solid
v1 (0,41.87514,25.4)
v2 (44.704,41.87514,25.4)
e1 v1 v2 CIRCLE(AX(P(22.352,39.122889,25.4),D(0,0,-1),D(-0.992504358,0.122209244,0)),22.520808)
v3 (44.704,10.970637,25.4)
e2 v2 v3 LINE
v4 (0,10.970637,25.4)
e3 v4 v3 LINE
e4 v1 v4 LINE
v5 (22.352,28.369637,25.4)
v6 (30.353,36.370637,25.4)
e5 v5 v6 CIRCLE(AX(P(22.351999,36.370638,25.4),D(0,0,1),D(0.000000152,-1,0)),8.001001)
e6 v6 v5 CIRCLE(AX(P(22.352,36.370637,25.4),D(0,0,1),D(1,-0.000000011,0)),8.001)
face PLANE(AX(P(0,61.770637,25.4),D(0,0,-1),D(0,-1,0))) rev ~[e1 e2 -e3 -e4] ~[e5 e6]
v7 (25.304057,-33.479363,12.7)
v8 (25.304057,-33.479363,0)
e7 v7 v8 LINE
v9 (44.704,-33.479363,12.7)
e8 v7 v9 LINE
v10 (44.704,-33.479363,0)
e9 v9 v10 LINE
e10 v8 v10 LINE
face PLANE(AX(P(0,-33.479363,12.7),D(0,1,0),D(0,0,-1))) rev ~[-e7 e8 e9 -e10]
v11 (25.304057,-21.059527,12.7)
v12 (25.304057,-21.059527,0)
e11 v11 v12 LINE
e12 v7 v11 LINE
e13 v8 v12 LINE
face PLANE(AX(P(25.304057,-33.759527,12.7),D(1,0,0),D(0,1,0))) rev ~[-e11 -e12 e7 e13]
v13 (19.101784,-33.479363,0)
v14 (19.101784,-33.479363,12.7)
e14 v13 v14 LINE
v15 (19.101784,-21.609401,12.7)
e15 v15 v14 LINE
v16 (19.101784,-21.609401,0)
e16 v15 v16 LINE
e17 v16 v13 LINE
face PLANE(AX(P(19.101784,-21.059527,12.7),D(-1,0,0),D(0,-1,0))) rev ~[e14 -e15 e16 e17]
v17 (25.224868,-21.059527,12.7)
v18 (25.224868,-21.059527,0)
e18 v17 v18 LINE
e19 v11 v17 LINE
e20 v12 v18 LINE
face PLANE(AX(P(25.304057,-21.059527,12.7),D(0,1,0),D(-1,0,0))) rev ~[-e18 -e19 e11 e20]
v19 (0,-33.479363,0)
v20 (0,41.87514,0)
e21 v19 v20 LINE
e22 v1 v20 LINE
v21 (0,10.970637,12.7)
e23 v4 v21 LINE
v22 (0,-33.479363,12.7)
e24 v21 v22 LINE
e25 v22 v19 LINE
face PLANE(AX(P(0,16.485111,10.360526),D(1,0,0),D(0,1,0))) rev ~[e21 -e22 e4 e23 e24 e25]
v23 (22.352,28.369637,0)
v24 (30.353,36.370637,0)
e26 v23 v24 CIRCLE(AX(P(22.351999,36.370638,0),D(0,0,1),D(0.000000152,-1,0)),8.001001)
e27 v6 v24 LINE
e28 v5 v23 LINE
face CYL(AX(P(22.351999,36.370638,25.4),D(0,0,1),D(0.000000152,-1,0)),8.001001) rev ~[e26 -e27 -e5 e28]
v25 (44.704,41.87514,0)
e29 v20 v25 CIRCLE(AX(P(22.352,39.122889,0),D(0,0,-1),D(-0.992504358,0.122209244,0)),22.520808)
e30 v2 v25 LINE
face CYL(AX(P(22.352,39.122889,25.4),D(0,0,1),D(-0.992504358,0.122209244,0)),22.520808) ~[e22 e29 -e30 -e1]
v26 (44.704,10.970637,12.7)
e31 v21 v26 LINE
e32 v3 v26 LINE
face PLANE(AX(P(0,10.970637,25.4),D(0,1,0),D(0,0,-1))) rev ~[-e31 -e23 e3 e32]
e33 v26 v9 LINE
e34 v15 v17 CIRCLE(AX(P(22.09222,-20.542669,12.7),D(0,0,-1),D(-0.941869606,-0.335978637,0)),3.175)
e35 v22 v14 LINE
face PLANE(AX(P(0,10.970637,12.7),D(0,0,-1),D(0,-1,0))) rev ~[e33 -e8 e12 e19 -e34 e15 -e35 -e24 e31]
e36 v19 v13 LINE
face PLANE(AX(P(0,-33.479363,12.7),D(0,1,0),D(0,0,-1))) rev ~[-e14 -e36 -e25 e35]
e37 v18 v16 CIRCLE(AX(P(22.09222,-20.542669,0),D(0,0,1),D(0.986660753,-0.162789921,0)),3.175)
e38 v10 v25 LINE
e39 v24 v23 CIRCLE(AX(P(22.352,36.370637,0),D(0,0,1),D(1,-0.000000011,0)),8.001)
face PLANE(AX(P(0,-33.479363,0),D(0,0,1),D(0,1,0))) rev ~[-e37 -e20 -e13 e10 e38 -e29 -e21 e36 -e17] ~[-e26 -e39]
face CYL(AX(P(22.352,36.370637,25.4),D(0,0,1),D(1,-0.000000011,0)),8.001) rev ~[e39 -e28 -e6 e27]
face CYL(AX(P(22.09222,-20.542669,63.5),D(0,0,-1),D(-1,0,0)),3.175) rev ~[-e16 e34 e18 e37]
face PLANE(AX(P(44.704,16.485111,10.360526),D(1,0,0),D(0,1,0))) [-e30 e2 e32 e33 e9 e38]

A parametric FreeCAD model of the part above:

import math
import FreeCAD as App
import Part
import Sketcher
Q = App.Units.Quantity

doc = App.newDocument("Part")
body = doc.addObject("PartDesign::Body", "Body")

sketch1 = doc.addObject("Sketcher::SketchObject", "Sketch")
body.addObject(sketch1)
sketch1.AttachmentSupport = (doc.YZ_Plane, [""])
sketch1.MapMode = "FlatFace"
sketch1.addGeometry(Part.LineSegment(App.Vector(-33, 13, 0), App.Vector(-33, 0, 0)), False)
sketch1.addGeometry(Part.LineSegment(App.Vector(-33, 0, 0), App.Vector(62, 0, 0)), False)
sketch1.addGeometry(Part.LineSegment(App.Vector(62, 0, 0), App.Vector(62, 25, 0)), False)
sketch1.addGeometry(Part.LineSegment(App.Vector(62, 25, 0), App.Vector(11, 25, 0)), False)
sketch1.addGeometry(Part.LineSegment(App.Vector(11, 25, 0), App.Vector(11, 13, 0)), False)
sketch1.addGeometry(Part.LineSegment(App.Vector(11, 13, 0), App.Vector(-33, 13, 0)), False)
sketch1.addConstraint(Sketcher.Constraint("Coincident", 0, 2, 1, 1))
sketch1.addConstraint(Sketcher.Constraint("Coincident", 1, 2, 2, 1))
sketch1.addConstraint(Sketcher.Constraint("Coincident", 2, 2, 3, 1))
sketch1.addConstraint(Sketcher.Constraint("Coincident", 3, 2, 4, 1))
sketch1.addConstraint(Sketcher.Constraint("Coincident", 4, 2, 5, 1))
sketch1.addConstraint(Sketcher.Constraint("Coincident", 5, 2, 0, 1))
sketch1.addConstraint(Sketcher.Constraint("Vertical", 0))
sketch1.addConstraint(Sketcher.Constraint("Horizontal", 1))
sketch1.addConstraint(Sketcher.Constraint("Vertical", 2))
sketch1.addConstraint(Sketcher.Constraint("Horizontal", 3))
sketch1.addConstraint(Sketcher.Constraint("Vertical", 4))
sketch1.addConstraint(Sketcher.Constraint("Horizontal", 5))
sketch1.addConstraint(Sketcher.Constraint("PointOnObject", 0, 2, -1))
sketch1.addConstraint(Sketcher.Constraint("Equal", 0, 4))
sketch1.addConstraint(Sketcher.Constraint("DistanceX", 3, 2, 3, 1, Q("2 in")))
sketch1.addConstraint(Sketcher.Constraint("DistanceY", 2, 1, 2, 2, Q("1 in")))
sketch1.addConstraint(Sketcher.Constraint("DistanceX", 1, 1, 1, 2, Q("3.75 in")))
sketch1.addConstraint(Sketcher.Constraint("DistanceX", 0, 2, -1, 1, Q("33.479363 mm")))
pad1 = doc.addObject("PartDesign::Pad", "Pad")
body.addObject(pad1)
pad1.Profile = sketch1
pad1.Length = Q("1.76 in")

sketch2 = doc.addObject("Sketcher::SketchObject", "Sketch001")
body.addObject(sketch2)
sketch2.AttachmentSupport = (doc.XY_Plane, [""])
sketch2.MapMode = "FlatFace"
sketch2.AttachmentOffset = App.Placement(App.Vector(0, 0, 0.5 * 25.4), App.Rotation())
sketch2.addGeometry(Part.Circle(App.Vector(22.1, -20.5, 0), App.Vector(0, 0, 1), 3.2), False)
sketch2.addConstraint(Sketcher.Constraint("Diameter", 0, Q("0.25 in")))
sketch2.addConstraint(Sketcher.Constraint("DistanceX", -1, 1, 0, 3, Q("22.09222 mm")))
sketch2.addConstraint(Sketcher.Constraint("DistanceY", 0, 3, -1, 1, Q("20.542669 mm")))
doc.recompute()
hole = doc.addObject("PartDesign::Hole", "Hole")
body.addObject(hole)
hole.Profile = sketch2
hole.ThreadType = "None"
hole.Diameter = Q("0.25 in")
hole.DepthType = "Dimension"
hole.Depth = Q("2 in")
hole.DrillPoint = "Flat"

sketch3 = doc.addObject("Sketcher::SketchObject", "Sketch002")
body.addObject(sketch3)
sketch3.AttachmentSupport = (doc.XY_Plane, [""])
sketch3.MapMode = "FlatFace"
sketch3.AttachmentOffset = App.Placement(App.Vector(0, 0, 0.5 * 25.4), App.Rotation())
sketch3.addGeometry(Part.LineSegment(App.Vector(25, -21, 0), App.Vector(19, -21, 0)), False)
sketch3.addGeometry(Part.LineSegment(App.Vector(19, -21, 0), App.Vector(19, -34, 0)), False)
sketch3.addGeometry(Part.LineSegment(App.Vector(19, -34, 0), App.Vector(25, -34, 0)), False)
sketch3.addGeometry(Part.LineSegment(App.Vector(25, -34, 0), App.Vector(25, -21, 0)), False)
sketch3.addConstraint(Sketcher.Constraint("Coincident", 0, 2, 1, 1))
sketch3.addConstraint(Sketcher.Constraint("Coincident", 1, 2, 2, 1))
sketch3.addConstraint(Sketcher.Constraint("Coincident", 2, 2, 3, 1))
sketch3.addConstraint(Sketcher.Constraint("Coincident", 3, 2, 0, 1))
sketch3.addConstraint(Sketcher.Constraint("Horizontal", 0))
sketch3.addConstraint(Sketcher.Constraint("Vertical", 1))
sketch3.addConstraint(Sketcher.Constraint("Vertical", 3))
sketch3.addConstraint(Sketcher.Constraint("DistanceY", 3, 1, 3, 2, Q("0.5 in")))
sketch3.addConstraint(Sketcher.Constraint("DistanceX", 0, 2, 0, 1, Q("6.202273 mm")))
sketch3.addConstraint(Sketcher.Constraint("DistanceY", 1, 2, 1, 1, Q("12.921406 mm")))
sketch3.addConstraint(Sketcher.Constraint("DistanceX", -1, 1, 0, 2, Q("19.101784 mm")))
sketch3.addConstraint(Sketcher.Constraint("DistanceY", 0, 2, -1, 1, Q("21.059527 mm")))
pocket1 = doc.addObject("PartDesign::Pocket", "Pocket")
body.addObject(pocket1)
pocket1.Profile = sketch3
pocket1.Length = Q("1 in")

sketch4 = doc.addObject("Sketcher::SketchObject", "Sketch003")
body.addObject(sketch4)
sketch4.AttachmentSupport = (doc.XY_Plane, [""])
sketch4.MapMode = "FlatFace"
sketch4.AttachmentOffset = App.Placement(App.Vector(0, 0, 1 * 25.4), App.Rotation())
sketch4.addGeometry(Part.ArcOfCircle(Part.Circle(App.Vector(22, 39, 0), App.Vector(0, 0, 1), 23), math.radians(7), math.radians(173)), False)
sketch4.addGeometry(Part.LineSegment(App.Vector(45, 42, 0), App.Vector(45, 62, 0)), False)
sketch4.addGeometry(Part.LineSegment(App.Vector(45, 62, 0), App.Vector(0, 62, 0)), False)
sketch4.addGeometry(Part.LineSegment(App.Vector(0, 62, 0), App.Vector(0, 42, 0)), False)
sketch4.addConstraint(Sketcher.Constraint("Coincident", 0, 1, 1, 1))
sketch4.addConstraint(Sketcher.Constraint("Coincident", 1, 2, 2, 1))
sketch4.addConstraint(Sketcher.Constraint("Coincident", 2, 2, 3, 1))
sketch4.addConstraint(Sketcher.Constraint("Coincident", 3, 2, 0, 2))
sketch4.addConstraint(Sketcher.Constraint("Vertical", 1))
sketch4.addConstraint(Sketcher.Constraint("Horizontal", 2))
sketch4.addConstraint(Sketcher.Constraint("Vertical", 3))
sketch4.addConstraint(Sketcher.Constraint("PointOnObject", 2, 2, -2))
sketch4.addConstraint(Sketcher.Constraint("Horizontal", 0, 1, 3, 2))
sketch4.addConstraint(Sketcher.Constraint("DistanceX", 2, 2, 2, 1, Q("1.76 in")))
sketch4.addConstraint(Sketcher.Constraint("Radius", 0, Q("22.520808 mm")))
sketch4.addConstraint(Sketcher.Constraint("DistanceY", 1, 1, 1, 2, Q("19.895497 mm")))
sketch4.addConstraint(Sketcher.Constraint("DistanceY", -1, 1, 0, 3, Q("39.122889 mm")))
pocket2 = doc.addObject("PartDesign::Pocket", "Pocket001")
body.addObject(pocket2)
pocket2.Profile = sketch4
pocket2.Length = Q("1 in")

sketch5 = doc.addObject("Sketcher::SketchObject", "Sketch004")
body.addObject(sketch5)
sketch5.AttachmentSupport = (doc.XY_Plane, [""])
sketch5.MapMode = "FlatFace"
sketch5.AttachmentOffset = App.Placement(App.Vector(0, 0, 1 * 25.4), App.Rotation())
sketch5.addGeometry(Part.ArcOfCircle(Part.Circle(App.Vector(22, 36, 0), App.Vector(0, 0, 1), 8), math.radians(0), math.radians(270)), False)
sketch5.addGeometry(Part.ArcOfCircle(Part.Circle(App.Vector(22, 36, 0), App.Vector(0, 0, 1), 8), math.radians(-90), math.radians(0)), False)
sketch5.addConstraint(Sketcher.Constraint("Tangent", 0, 1, 1, 2))
sketch5.addConstraint(Sketcher.Constraint("Coincident", 1, 1, 0, 2))
sketch5.addConstraint(Sketcher.Constraint("Horizontal", 1, 3, 0, 1))
sketch5.addConstraint(Sketcher.Constraint("Vertical", 0, 3, 1, 1))
sketch5.addConstraint(Sketcher.Constraint("Radius", 0, Q("0.315 in")))
sketch5.addConstraint(Sketcher.Constraint("DistanceX", -1, 1, 0, 3, Q("0.88 in")))
sketch5.addConstraint(Sketcher.Constraint("DistanceY", -1, 1, 1, 3, Q("36.370638 mm")))
pocket3 = doc.addObject("PartDesign::Pocket", "Pocket002")
body.addObject(pocket3)
pocket3.Profile = sketch5
pocket3.Length = Q("1 in")

doc.recompute()
